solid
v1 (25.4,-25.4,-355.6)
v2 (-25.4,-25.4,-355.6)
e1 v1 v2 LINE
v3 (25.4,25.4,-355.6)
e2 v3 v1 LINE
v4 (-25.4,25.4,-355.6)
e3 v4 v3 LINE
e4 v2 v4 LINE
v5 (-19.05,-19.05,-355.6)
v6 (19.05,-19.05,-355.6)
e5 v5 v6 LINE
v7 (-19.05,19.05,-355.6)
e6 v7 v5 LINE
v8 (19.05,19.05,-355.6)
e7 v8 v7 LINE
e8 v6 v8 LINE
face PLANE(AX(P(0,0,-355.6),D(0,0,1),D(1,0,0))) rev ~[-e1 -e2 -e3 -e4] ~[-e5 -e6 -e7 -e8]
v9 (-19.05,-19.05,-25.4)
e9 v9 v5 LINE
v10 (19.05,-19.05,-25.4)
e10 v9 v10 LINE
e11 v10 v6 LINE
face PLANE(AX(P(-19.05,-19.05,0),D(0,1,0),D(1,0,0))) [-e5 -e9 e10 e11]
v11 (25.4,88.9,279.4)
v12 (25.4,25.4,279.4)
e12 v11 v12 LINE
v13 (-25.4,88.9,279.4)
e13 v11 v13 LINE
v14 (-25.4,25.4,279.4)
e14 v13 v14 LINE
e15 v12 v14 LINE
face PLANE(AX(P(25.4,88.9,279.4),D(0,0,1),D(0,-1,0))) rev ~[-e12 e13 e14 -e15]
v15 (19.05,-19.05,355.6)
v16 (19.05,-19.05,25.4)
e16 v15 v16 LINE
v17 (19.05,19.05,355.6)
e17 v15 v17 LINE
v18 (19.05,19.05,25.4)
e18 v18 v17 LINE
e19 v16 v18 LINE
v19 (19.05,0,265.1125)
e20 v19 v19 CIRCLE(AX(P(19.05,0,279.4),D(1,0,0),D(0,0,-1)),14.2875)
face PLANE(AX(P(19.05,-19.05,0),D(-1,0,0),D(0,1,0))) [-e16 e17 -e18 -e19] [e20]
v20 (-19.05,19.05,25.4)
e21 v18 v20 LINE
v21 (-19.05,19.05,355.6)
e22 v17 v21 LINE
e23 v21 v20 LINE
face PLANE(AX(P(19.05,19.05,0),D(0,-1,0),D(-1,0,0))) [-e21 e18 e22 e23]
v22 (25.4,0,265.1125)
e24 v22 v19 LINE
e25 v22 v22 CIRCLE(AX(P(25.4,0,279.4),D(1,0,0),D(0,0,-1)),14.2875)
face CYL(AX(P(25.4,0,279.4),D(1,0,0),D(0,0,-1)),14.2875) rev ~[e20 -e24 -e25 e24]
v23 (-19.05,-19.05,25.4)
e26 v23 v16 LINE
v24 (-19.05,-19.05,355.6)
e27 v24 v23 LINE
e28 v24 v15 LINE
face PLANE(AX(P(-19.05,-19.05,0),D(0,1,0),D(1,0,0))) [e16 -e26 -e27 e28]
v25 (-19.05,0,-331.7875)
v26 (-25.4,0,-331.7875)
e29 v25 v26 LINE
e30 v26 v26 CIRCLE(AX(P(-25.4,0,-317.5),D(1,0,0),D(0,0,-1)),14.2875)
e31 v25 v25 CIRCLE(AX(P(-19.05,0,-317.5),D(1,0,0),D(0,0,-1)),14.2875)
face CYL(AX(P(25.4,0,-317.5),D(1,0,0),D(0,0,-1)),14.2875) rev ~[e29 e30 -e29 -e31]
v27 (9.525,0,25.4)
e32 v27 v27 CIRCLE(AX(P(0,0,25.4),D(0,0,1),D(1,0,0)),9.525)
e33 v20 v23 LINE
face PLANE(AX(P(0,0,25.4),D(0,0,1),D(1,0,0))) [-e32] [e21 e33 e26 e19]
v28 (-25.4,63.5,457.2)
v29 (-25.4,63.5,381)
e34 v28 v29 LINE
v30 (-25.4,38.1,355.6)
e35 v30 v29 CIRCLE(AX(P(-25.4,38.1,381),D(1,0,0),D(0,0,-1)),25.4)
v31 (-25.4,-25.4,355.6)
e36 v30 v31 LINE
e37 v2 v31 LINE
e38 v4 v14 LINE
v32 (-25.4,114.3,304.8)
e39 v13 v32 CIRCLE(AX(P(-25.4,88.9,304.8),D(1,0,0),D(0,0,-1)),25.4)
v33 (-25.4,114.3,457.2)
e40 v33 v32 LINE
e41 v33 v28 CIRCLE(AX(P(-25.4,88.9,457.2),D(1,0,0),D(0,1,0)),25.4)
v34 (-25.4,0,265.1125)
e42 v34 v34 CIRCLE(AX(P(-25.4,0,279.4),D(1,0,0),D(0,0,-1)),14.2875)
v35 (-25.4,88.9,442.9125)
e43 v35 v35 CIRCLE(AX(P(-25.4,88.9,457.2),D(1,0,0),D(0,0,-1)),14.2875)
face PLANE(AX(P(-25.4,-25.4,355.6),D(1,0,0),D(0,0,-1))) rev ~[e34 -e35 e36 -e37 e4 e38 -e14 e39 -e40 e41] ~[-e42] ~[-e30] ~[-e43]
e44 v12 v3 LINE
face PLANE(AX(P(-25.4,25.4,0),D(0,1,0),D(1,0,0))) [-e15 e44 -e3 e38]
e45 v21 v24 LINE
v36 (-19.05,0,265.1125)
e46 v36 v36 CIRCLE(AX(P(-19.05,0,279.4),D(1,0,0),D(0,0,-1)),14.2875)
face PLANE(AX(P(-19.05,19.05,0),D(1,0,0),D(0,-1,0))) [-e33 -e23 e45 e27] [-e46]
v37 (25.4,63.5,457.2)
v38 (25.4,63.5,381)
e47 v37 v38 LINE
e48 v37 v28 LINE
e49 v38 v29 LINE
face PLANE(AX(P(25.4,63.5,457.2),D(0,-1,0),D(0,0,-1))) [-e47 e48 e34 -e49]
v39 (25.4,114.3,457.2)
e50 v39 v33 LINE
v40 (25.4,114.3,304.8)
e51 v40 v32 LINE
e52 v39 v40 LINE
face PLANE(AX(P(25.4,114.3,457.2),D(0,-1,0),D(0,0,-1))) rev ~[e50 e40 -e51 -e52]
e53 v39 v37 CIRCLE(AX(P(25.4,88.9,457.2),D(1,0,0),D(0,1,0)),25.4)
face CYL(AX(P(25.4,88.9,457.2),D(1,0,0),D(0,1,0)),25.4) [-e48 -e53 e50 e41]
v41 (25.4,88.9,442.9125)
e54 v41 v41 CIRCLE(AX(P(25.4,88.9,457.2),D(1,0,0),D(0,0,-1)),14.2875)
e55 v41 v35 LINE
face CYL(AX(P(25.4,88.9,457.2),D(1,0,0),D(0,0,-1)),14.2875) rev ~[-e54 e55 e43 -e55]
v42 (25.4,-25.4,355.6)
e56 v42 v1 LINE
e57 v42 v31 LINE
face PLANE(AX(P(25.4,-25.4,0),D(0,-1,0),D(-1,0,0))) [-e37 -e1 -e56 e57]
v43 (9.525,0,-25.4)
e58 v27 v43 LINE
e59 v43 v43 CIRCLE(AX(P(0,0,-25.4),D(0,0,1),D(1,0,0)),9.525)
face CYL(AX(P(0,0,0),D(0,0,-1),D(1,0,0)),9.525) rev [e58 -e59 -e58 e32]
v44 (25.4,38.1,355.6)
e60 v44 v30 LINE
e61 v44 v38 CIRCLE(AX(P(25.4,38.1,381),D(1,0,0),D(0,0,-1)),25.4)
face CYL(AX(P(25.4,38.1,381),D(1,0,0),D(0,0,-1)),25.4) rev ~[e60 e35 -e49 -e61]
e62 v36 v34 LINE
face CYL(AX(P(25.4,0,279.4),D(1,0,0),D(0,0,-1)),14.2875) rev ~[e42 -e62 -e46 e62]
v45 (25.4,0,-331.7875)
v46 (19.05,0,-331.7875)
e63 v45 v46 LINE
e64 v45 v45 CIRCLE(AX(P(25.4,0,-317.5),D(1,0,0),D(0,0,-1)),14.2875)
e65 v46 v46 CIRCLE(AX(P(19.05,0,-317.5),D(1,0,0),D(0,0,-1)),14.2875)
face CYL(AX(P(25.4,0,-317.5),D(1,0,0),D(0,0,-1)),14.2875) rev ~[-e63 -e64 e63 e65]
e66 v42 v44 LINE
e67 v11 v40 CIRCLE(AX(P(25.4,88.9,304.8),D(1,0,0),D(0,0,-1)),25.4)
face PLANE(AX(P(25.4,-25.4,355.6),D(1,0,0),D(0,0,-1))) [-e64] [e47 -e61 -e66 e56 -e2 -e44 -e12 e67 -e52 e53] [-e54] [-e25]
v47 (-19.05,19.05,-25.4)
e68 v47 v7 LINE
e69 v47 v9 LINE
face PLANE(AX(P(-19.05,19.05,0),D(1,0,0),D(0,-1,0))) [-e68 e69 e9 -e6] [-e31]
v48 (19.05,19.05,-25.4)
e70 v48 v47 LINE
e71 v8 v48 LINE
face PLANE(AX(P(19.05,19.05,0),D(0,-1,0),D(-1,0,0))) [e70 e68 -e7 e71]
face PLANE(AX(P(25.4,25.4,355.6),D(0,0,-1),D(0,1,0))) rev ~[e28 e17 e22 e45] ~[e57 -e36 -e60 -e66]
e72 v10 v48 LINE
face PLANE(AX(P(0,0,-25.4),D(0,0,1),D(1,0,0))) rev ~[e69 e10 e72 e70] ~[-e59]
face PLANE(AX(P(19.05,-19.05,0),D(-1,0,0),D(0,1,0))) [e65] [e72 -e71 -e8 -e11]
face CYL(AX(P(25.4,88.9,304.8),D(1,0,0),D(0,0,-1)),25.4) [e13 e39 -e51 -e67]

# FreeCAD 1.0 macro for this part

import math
import FreeCAD as App
import Part
import Sketcher
from FreeCAD import Vector
Q = App.Units.Quantity

doc = App.newDocument("Part")
body = doc.addObject("PartDesign::Body", "Body")

sketch1 = body.newObject("Sketcher::SketchObject", "Sketch")
sketch1.AttachmentSupport = (doc.getObject("XY_Plane"), [""])
sketch1.MapMode = "FlatFace"
sketch1.addGeometry(Part.LineSegment(Vector(25, 25, 0), Vector(-25, 25, 0)), False)
sketch1.addGeometry(Part.LineSegment(Vector(-25, 25, 0), Vector(-25, -25, 0)), False)
sketch1.addGeometry(Part.LineSegment(Vector(-25, -25, 0), Vector(25, -25, 0)), False)
sketch1.addGeometry(Part.LineSegment(Vector(25, -25, 0), Vector(25, 25, 0)), False)
sketch1.addGeometry(Part.LineSegment(Vector(-19, 19, 0), Vector(19, 19, 0)), False)
sketch1.addGeometry(Part.LineSegment(Vector(19, 19, 0), Vector(19, -19, 0)), False)
sketch1.addGeometry(Part.LineSegment(Vector(19, -19, 0), Vector(-19, -19, 0)), False)
sketch1.addGeometry(Part.LineSegment(Vector(-19, -19, 0), Vector(-19, 19, 0)), False)
sketch1.addConstraint(Sketcher.Constraint("Coincident", 0, 2, 1, 1))
sketch1.addConstraint(Sketcher.Constraint("Coincident", 1, 2, 2, 1))
sketch1.addConstraint(Sketcher.Constraint("Coincident", 2, 2, 3, 1))
sketch1.addConstraint(Sketcher.Constraint("Coincident", 3, 2, 0, 1))
sketch1.addConstraint(Sketcher.Constraint("Coincident", 4, 2, 5, 1))
sketch1.addConstraint(Sketcher.Constraint("Coincident", 5, 2, 6, 1))
sketch1.addConstraint(Sketcher.Constraint("Coincident", 6, 2, 7, 1))
sketch1.addConstraint(Sketcher.Constraint("Coincident", 7, 2, 4, 1))
sketch1.addConstraint(Sketcher.Constraint("Horizontal", 0))
sketch1.addConstraint(Sketcher.Constraint("Vertical", 1))
sketch1.addConstraint(Sketcher.Constraint("Horizontal", 2))
sketch1.addConstraint(Sketcher.Constraint("Vertical", 3))
sketch1.addConstraint(Sketcher.Constraint("Horizontal", 4))
sketch1.addConstraint(Sketcher.Constraint("Vertical", 5))
sketch1.addConstraint(Sketcher.Constraint("Horizontal", 6))
sketch1.addConstraint(Sketcher.Constraint("Vertical", 7))
sketch1.addConstraint(Sketcher.Constraint("Symmetric", 0, 2, 2, 2, -1, 1))
sketch1.addConstraint(Sketcher.Constraint("Symmetric", 4, 2, 6, 2, -1, 1))
sketch1.addConstraint(Sketcher.Constraint("Equal", 2, 1))
sketch1.addConstraint(Sketcher.Constraint("Equal", 6, 5))
sketch1.addConstraint(Sketcher.Constraint("DistanceX", 0, 2, 0, 1, Q("2 in")))
sketch1.addConstraint(Sketcher.Constraint("DistanceX", -1, 1, 4, 2, Q("0.75 in")))
pad1 = body.newObject("PartDesign::Pad", "Pad")
pad1.Profile = sketch1
pad1.Length = Q("28 in")
pad1.Midplane = True

sketch2 = body.newObject("Sketcher::SketchObject", "Sketch001")
sketch2.AttachmentSupport = (doc.getObject("XY_Plane"), [""])
sketch2.MapMode = "FlatFace"
sketch2.addGeometry(Part.LineSegment(Vector(19, -19, 0), Vector(19, 19, 0)), False)
sketch2.addGeometry(Part.LineSegment(Vector(19, 19, 0), Vector(-19, 19, 0)), False)
sketch2.addGeometry(Part.LineSegment(Vector(-19, 19, 0), Vector(-19, -19, 0)), False)
sketch2.addGeometry(Part.LineSegment(Vector(-19, -19, 0), Vector(19, -19, 0)), False)
sketch2.addGeometry(Part.Circle(Vector(0, 0, 0), Vector(0, 0, 1), 10), False)
sketch2.addConstraint(Sketcher.Constraint("Coincident", 0, 2, 1, 1))
sketch2.addConstraint(Sketcher.Constraint("Coincident", 1, 2, 2, 1))
sketch2.addConstraint(Sketcher.Constraint("Coincident", 2, 2, 3, 1))
sketch2.addConstraint(Sketcher.Constraint("Coincident", 3, 2, 0, 1))
sketch2.addConstraint(Sketcher.Constraint("Vertical", 0))
sketch2.addConstraint(Sketcher.Constraint("Horizontal", 1))
sketch2.addConstraint(Sketcher.Constraint("Vertical", 2))
sketch2.addConstraint(Sketcher.Constraint("Horizontal", 3))
sketch2.addConstraint(Sketcher.Constraint("Coincident", 4, 3, -1, 1))
sketch2.addConstraint(Sketcher.Constraint("Symmetric", 0, 2, 2, 2, -1, 1))
sketch2.addConstraint(Sketcher.Constraint("Equal", 3, 0))
sketch2.addConstraint(Sketcher.Constraint("Diameter", 4, Q("0.75 in")))
sketch2.addConstraint(Sketcher.Constraint("DistanceX", -1, 1, 0, 2, Q("0.75 in")))
pad2 = body.newObject("PartDesign::Pad", "Pad001")
pad2.Profile = sketch2
pad2.Length = Q("2 in")
pad2.Midplane = True

sketch3 = body.newObject("Sketcher::SketchObject", "Sketch002")
sketch3.AttachmentSupport = (doc.getObject("YZ_Plane"), [""])
sketch3.MapMode = "FlatFace"
sketch3.AttachmentOffset = App.Placement(Vector(0, 0, 1 * 25.4), App.Rotation())
sketch3.addGeometry(Part.Circle(Vector(0, -318, 0), Vector(0, 0, 1), 14), False)
sketch3.addGeometry(Part.Circle(Vector(0, 279, 0), Vector(0, 0, 1), 14), False)
sketch3.addConstraint(Sketcher.Constraint("Equal", 0, 1))
sketch3.addConstraint(Sketcher.Constraint("PointOnObject", 0, 3, -2))
sketch3.addConstraint(Sketcher.Constraint("PointOnObject", 1, 3, -2))
sketch3.addConstraint(Sketcher.Constraint("Diameter", 0, Q("1.125 in")))
sketch3.addConstraint(Sketcher.Constraint("DistanceY", -1, 1, 1, 3, Q("11 in")))
sketch3.addConstraint(Sketcher.Constraint("DistanceY", 0, 3, -1, 1, Q("12.5 in")))
pocket1 = body.newObject("PartDesign::Pocket", "Pocket")
pocket1.Profile = sketch3
pocket1.Length = Q("2 in")

sketch4 = body.newObject("Sketcher::SketchObject", "Sketch003")
sketch4.AttachmentSupport = (doc.getObject("YZ_Plane"), [""])
sketch4.MapMode = "FlatFace"
sketch4.AttachmentOffset = App.Placement(Vector(0, 0, 1 * 25.4), App.Rotation())
sketch4.addGeometry(Part.LineSegment(Vector(38, 356, 0), Vector(25, 356, 0)), False)
sketch4.addGeometry(Part.LineSegment(Vector(25, 356, 0), Vector(25, 279, 0)), False)
sketch4.addGeometry(Part.LineSegment(Vector(25, 279, 0), Vector(89, 279, 0)), False)
sketch4.addGeometry(Part.ArcOfCircle(Part.Circle(Vector(89, 305, 0), Vector(0, 0, 1), 25), math.radians(-90), math.radians(0)), False)
sketch4.addGeometry(Part.LineSegment(Vector(114, 305, 0), Vector(114, 457, 0)), False)
sketch4.addGeometry(Part.ArcOfCircle(Part.Circle(Vector(89, 457, 0), Vector(0, 0, 1), 25), math.radians(0), math.radians(180)), False)
sketch4.addGeometry(Part.LineSegment(Vector(64, 457, 0), Vector(64, 381, 0)), False)
sketch4.addGeometry(Part.ArcOfCircle(Part.Circle(Vector(38, 381, 0), Vector(0, 0, 1), 25), math.radians(-90), math.radians(0)), False)
sketch4.addGeometry(Part.Circle(Vector(89, 457, 0), Vector(0, 0, 1), 14), False)
sketch4.addConstraint(Sketcher.Constraint("Coincident", 0, 2, 1, 1))
sketch4.addConstraint(Sketcher.Constraint("Coincident", 1, 2, 2, 1))
sketch4.addConstraint(Sketcher.Constraint("Tangent", 2, 2, 3, 1))
sketch4.addConstraint(Sketcher.Constraint("Tangent", 3, 2, 4, 1))
sketch4.addConstraint(Sketcher.Constraint("Tangent", 4, 2, 5, 1))
sketch4.addConstraint(Sketcher.Constraint("Tangent", 5, 2, 6, 1))
sketch4.addConstraint(Sketcher.Constraint("Tangent", 6, 2, 7, 2))
sketch4.addConstraint(Sketcher.Constraint("Tangent", 7, 1, 0, 1))
sketch4.addConstraint(Sketcher.Constraint("Horizontal", 0))
sketch4.addConstraint(Sketcher.Constraint("Vertical", 1))
sketch4.addConstraint(Sketcher.Constraint("Horizontal", 2))
sketch4.addConstraint(Sketcher.Constraint("Vertical", 4))
sketch4.addConstraint(Sketcher.Constraint("Vertical", 6))
sketch4.addConstraint(Sketcher.Constraint("Coincident", 8, 3, 5, 3))
sketch4.addConstraint(Sketcher.Constraint("Equal", 3, 5))
sketch4.addConstraint(Sketcher.Constraint("Equal", 5, 7))
sketch4.addConstraint(Sketcher.Constraint("Equal", 1, 6))
sketch4.addConstraint(Sketcher.Constraint("Radius", 3, Q("1 in")))
sketch4.addConstraint(Sketcher.Constraint("DistanceY", 1, 2, 1, 1, Q("3 in")))
sketch4.addConstraint(Sketcher.Constraint("Diameter", 8, Q("1.125 in")))
sketch4.addConstraint(Sketcher.Constraint("DistanceX", -1, 1, 0, 2, Q("1 in")))
sketch4.addConstraint(Sketcher.Constraint("DistanceX", -1, 1, 7, 3, Q("1.5 in")))
sketch4.addConstraint(Sketcher.Constraint("DistanceY", -1, 1, 3, 3, Q("12 in")))
pad3 = body.newObject("PartDesign::Pad", "Pad002")
pad3.Profile = sketch4
pad3.Length = Q("2 in")
pad3.Reversed = True

doc.recompute()
